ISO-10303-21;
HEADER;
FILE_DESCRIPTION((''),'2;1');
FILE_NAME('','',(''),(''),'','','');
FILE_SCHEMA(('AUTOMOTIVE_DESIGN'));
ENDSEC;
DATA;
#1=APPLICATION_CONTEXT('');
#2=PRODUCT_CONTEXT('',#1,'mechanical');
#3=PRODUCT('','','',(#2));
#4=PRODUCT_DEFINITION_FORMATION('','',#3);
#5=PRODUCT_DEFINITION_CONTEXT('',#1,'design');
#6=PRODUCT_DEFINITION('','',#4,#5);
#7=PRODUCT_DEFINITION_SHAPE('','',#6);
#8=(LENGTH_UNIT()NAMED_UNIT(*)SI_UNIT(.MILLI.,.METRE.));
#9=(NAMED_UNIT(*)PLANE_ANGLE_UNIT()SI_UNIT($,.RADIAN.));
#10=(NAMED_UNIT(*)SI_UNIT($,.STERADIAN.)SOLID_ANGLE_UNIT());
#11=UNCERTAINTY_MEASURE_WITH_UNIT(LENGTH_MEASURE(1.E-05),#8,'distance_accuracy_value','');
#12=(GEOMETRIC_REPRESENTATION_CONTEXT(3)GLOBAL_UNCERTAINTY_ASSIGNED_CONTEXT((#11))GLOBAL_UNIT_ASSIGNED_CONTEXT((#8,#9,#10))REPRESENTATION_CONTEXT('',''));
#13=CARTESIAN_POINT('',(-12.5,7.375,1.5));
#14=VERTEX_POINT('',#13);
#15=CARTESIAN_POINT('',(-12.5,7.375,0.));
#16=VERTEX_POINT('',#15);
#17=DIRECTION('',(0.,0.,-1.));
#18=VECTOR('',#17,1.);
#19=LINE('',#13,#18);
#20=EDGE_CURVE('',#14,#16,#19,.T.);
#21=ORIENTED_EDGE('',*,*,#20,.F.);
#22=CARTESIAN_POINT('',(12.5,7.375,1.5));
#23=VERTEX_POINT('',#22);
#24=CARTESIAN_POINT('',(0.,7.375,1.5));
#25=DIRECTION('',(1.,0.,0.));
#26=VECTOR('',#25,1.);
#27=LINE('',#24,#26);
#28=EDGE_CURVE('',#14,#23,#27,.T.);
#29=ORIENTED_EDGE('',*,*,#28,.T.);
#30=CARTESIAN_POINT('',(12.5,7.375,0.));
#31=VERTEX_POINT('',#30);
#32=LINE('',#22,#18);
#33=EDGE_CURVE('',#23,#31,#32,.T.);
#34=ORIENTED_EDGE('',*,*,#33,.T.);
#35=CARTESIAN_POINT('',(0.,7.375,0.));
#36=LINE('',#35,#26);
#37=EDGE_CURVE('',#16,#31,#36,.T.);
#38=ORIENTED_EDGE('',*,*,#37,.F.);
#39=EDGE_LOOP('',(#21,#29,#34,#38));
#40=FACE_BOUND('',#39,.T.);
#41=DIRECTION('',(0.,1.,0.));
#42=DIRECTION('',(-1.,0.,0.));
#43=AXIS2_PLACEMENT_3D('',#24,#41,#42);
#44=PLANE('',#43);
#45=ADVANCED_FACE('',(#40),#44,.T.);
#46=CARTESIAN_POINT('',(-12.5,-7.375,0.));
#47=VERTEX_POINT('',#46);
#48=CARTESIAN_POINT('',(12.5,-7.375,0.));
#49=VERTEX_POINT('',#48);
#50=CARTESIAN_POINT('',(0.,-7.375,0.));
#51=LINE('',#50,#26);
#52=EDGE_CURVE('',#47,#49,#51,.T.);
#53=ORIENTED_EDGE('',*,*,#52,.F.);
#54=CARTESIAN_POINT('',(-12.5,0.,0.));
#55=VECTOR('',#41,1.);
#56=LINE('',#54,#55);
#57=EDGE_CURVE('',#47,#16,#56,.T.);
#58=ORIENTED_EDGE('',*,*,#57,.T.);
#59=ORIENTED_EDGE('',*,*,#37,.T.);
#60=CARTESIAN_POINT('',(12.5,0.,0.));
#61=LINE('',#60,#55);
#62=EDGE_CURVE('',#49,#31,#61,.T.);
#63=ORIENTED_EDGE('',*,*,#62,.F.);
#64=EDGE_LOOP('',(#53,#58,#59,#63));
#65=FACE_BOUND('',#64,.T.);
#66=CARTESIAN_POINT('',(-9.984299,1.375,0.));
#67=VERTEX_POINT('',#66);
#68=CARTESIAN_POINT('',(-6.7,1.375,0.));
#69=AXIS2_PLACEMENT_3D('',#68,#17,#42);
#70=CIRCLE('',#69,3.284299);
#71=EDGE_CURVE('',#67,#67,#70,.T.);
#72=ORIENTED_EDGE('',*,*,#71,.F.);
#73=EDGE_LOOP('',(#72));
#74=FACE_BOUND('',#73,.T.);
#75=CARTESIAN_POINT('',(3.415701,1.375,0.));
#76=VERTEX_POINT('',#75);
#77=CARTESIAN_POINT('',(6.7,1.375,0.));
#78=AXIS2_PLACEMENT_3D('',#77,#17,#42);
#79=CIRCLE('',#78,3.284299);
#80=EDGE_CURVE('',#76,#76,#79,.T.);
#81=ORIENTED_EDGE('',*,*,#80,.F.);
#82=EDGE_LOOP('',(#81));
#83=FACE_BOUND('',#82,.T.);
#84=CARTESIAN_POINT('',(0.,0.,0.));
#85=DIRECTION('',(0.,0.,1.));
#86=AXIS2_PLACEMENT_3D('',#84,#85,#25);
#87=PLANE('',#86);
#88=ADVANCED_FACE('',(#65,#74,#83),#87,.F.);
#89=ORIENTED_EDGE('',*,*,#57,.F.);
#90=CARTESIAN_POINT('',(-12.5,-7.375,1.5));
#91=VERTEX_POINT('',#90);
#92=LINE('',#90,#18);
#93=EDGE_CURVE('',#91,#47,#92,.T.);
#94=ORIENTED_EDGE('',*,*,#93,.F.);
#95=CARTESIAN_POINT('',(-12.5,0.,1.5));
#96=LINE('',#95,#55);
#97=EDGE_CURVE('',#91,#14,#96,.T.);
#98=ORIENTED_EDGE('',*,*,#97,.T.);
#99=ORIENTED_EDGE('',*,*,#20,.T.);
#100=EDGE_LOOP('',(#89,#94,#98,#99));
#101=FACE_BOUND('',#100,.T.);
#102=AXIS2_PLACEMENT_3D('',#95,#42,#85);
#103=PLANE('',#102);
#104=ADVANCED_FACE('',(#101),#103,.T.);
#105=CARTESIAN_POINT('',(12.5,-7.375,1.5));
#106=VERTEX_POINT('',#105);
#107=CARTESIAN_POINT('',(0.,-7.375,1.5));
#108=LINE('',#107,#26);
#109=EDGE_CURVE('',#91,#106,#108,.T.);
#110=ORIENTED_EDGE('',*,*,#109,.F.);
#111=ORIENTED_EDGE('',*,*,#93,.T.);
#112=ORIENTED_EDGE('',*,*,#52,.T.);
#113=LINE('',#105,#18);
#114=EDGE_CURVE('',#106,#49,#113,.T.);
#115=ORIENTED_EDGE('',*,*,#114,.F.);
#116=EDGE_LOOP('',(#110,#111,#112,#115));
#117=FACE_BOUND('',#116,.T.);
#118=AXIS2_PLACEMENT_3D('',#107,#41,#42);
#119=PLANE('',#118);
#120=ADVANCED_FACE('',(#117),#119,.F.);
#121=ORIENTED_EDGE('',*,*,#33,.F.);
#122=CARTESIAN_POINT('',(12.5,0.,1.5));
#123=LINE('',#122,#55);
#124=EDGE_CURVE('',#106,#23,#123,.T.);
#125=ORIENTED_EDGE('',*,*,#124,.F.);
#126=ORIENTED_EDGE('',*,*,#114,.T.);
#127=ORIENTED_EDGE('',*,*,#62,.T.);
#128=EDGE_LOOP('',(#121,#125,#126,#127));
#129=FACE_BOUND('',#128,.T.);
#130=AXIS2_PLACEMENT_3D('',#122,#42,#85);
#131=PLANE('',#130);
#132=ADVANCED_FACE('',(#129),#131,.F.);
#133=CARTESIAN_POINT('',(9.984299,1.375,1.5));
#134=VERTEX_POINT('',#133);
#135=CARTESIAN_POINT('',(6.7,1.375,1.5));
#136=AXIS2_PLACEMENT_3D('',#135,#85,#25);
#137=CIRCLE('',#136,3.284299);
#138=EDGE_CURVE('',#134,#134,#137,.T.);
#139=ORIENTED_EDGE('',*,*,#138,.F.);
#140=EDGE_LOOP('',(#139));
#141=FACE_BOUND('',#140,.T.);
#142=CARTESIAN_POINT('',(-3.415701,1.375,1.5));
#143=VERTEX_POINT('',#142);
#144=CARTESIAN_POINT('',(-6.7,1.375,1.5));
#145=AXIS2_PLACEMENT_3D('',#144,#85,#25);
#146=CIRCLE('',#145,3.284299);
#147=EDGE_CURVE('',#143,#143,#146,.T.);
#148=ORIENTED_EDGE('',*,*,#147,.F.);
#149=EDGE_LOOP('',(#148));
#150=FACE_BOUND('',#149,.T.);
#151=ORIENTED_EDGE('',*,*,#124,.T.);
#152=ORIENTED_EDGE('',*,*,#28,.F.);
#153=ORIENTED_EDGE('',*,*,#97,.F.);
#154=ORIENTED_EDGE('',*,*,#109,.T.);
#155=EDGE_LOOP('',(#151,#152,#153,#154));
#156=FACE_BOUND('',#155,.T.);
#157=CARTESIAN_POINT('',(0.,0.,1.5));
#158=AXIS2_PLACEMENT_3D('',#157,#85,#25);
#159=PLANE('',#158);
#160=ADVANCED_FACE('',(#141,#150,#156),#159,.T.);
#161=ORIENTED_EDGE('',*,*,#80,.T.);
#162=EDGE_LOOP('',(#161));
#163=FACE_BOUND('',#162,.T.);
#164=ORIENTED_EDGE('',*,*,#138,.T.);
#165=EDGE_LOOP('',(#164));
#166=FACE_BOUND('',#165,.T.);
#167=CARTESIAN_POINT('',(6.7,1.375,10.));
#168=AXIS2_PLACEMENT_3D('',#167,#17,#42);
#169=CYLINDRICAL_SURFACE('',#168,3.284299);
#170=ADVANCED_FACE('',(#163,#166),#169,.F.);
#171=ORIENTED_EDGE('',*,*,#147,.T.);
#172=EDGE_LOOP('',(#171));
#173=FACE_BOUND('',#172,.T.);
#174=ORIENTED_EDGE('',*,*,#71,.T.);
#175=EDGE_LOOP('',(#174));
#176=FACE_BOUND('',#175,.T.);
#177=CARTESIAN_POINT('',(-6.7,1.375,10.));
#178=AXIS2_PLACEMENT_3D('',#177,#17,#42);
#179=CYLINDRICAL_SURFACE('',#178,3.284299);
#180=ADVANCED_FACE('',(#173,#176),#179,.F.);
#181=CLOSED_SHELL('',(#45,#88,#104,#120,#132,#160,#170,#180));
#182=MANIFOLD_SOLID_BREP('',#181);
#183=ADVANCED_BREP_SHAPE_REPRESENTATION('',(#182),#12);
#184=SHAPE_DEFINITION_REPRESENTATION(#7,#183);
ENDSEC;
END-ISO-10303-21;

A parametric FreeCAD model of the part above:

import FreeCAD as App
import Part
import Sketcher
from FreeCAD import Vector
Q = App.Units.Quantity


def add_polygon(sketch, points):
    """Adds a closed chain of lines whose ends are joined by coincident constraints."""
    first, n = sketch.GeometryCount, len(points)
    for a, b in zip(points, points[1:] + points[:1]):
        sketch.addGeometry(Part.LineSegment(App.Vector(*a, 0), App.Vector(*b, 0)), False)
    for i in range(n):
        sketch.addConstraint(Sketcher.Constraint("Coincident", first + i, 2, first + (i + 1) % n, 1))

doc = App.newDocument("Part")
body = doc.addObject("PartDesign::Body", "Body")

# Sketch on XY plane
sketch1 = doc.addObject("Sketcher::SketchObject", "Sketch")
body.addObject(sketch1)
sketch1.AttachmentSupport = (doc.XY_Plane, [""])
sketch1.MapMode = "FlatFace"
add_polygon(sketch1, [(-12, 7), (-12, -7), (12, -7), (12, 7)])  # lines 0-3
sketch1.addConstraint(Sketcher.Constraint("Vertical", 0))
sketch1.addConstraint(Sketcher.Constraint("Horizontal", 1))
sketch1.addConstraint(Sketcher.Constraint("Vertical", 2))
sketch1.addConstraint(Sketcher.Constraint("Horizontal", 3))
sketch1.addConstraint(Sketcher.Constraint("Symmetric", 0, 2, 2, 2, -1, 1))
sketch1.addConstraint(Sketcher.Constraint("DistanceX", 1, 1, 1, 2, Q("25 mm")))
sketch1.addConstraint(Sketcher.Constraint("DistanceY", 0, 2, 0, 1, Q("14.75 mm")))
pad1 = doc.addObject("PartDesign::Pad", "Pad")
body.addObject(pad1)
pad1.Profile = sketch1
pad1.Length = 1.5

# Sketch on XY plane
sketch2 = doc.addObject("Sketcher::SketchObject", "Sketch001")
body.addObject(sketch2)
sketch2.AttachmentSupport = (doc.XY_Plane, [""])
sketch2.MapMode = "FlatFace"
sketch2.addGeometry(Part.Circle(Vector(6.7, 1.4, 0), Vector(0, 0, 1), 3.3), False)
sketch2.addGeometry(Part.Circle(Vector(-6.7, 1.4, 0), Vector(0, 0, 1), 3.3), False)
sketch2.addConstraint(Sketcher.Constraint("Equal", 0, 1))
sketch2.addConstraint(Sketcher.Constraint("Symmetric", 0, 3, 1, 3, -2))
sketch2.addConstraint(Sketcher.Constraint("DistanceX", -1, 1, 0, 3, Q("6.7 mm")))
sketch2.addConstraint(Sketcher.Constraint("Diameter", 0, Q("6.568598 mm")))
sketch2.addConstraint(Sketcher.Constraint("DistanceY", -1, 1, 0, 3, Q("1.375 mm")))
pocket1 = doc.addObject("PartDesign::Pocket", "Pocket")
body.addObject(pocket1)
pocket1.Profile = sketch2
pocket1.Length = 10
pocket1.Reversed = True

doc.recompute()
